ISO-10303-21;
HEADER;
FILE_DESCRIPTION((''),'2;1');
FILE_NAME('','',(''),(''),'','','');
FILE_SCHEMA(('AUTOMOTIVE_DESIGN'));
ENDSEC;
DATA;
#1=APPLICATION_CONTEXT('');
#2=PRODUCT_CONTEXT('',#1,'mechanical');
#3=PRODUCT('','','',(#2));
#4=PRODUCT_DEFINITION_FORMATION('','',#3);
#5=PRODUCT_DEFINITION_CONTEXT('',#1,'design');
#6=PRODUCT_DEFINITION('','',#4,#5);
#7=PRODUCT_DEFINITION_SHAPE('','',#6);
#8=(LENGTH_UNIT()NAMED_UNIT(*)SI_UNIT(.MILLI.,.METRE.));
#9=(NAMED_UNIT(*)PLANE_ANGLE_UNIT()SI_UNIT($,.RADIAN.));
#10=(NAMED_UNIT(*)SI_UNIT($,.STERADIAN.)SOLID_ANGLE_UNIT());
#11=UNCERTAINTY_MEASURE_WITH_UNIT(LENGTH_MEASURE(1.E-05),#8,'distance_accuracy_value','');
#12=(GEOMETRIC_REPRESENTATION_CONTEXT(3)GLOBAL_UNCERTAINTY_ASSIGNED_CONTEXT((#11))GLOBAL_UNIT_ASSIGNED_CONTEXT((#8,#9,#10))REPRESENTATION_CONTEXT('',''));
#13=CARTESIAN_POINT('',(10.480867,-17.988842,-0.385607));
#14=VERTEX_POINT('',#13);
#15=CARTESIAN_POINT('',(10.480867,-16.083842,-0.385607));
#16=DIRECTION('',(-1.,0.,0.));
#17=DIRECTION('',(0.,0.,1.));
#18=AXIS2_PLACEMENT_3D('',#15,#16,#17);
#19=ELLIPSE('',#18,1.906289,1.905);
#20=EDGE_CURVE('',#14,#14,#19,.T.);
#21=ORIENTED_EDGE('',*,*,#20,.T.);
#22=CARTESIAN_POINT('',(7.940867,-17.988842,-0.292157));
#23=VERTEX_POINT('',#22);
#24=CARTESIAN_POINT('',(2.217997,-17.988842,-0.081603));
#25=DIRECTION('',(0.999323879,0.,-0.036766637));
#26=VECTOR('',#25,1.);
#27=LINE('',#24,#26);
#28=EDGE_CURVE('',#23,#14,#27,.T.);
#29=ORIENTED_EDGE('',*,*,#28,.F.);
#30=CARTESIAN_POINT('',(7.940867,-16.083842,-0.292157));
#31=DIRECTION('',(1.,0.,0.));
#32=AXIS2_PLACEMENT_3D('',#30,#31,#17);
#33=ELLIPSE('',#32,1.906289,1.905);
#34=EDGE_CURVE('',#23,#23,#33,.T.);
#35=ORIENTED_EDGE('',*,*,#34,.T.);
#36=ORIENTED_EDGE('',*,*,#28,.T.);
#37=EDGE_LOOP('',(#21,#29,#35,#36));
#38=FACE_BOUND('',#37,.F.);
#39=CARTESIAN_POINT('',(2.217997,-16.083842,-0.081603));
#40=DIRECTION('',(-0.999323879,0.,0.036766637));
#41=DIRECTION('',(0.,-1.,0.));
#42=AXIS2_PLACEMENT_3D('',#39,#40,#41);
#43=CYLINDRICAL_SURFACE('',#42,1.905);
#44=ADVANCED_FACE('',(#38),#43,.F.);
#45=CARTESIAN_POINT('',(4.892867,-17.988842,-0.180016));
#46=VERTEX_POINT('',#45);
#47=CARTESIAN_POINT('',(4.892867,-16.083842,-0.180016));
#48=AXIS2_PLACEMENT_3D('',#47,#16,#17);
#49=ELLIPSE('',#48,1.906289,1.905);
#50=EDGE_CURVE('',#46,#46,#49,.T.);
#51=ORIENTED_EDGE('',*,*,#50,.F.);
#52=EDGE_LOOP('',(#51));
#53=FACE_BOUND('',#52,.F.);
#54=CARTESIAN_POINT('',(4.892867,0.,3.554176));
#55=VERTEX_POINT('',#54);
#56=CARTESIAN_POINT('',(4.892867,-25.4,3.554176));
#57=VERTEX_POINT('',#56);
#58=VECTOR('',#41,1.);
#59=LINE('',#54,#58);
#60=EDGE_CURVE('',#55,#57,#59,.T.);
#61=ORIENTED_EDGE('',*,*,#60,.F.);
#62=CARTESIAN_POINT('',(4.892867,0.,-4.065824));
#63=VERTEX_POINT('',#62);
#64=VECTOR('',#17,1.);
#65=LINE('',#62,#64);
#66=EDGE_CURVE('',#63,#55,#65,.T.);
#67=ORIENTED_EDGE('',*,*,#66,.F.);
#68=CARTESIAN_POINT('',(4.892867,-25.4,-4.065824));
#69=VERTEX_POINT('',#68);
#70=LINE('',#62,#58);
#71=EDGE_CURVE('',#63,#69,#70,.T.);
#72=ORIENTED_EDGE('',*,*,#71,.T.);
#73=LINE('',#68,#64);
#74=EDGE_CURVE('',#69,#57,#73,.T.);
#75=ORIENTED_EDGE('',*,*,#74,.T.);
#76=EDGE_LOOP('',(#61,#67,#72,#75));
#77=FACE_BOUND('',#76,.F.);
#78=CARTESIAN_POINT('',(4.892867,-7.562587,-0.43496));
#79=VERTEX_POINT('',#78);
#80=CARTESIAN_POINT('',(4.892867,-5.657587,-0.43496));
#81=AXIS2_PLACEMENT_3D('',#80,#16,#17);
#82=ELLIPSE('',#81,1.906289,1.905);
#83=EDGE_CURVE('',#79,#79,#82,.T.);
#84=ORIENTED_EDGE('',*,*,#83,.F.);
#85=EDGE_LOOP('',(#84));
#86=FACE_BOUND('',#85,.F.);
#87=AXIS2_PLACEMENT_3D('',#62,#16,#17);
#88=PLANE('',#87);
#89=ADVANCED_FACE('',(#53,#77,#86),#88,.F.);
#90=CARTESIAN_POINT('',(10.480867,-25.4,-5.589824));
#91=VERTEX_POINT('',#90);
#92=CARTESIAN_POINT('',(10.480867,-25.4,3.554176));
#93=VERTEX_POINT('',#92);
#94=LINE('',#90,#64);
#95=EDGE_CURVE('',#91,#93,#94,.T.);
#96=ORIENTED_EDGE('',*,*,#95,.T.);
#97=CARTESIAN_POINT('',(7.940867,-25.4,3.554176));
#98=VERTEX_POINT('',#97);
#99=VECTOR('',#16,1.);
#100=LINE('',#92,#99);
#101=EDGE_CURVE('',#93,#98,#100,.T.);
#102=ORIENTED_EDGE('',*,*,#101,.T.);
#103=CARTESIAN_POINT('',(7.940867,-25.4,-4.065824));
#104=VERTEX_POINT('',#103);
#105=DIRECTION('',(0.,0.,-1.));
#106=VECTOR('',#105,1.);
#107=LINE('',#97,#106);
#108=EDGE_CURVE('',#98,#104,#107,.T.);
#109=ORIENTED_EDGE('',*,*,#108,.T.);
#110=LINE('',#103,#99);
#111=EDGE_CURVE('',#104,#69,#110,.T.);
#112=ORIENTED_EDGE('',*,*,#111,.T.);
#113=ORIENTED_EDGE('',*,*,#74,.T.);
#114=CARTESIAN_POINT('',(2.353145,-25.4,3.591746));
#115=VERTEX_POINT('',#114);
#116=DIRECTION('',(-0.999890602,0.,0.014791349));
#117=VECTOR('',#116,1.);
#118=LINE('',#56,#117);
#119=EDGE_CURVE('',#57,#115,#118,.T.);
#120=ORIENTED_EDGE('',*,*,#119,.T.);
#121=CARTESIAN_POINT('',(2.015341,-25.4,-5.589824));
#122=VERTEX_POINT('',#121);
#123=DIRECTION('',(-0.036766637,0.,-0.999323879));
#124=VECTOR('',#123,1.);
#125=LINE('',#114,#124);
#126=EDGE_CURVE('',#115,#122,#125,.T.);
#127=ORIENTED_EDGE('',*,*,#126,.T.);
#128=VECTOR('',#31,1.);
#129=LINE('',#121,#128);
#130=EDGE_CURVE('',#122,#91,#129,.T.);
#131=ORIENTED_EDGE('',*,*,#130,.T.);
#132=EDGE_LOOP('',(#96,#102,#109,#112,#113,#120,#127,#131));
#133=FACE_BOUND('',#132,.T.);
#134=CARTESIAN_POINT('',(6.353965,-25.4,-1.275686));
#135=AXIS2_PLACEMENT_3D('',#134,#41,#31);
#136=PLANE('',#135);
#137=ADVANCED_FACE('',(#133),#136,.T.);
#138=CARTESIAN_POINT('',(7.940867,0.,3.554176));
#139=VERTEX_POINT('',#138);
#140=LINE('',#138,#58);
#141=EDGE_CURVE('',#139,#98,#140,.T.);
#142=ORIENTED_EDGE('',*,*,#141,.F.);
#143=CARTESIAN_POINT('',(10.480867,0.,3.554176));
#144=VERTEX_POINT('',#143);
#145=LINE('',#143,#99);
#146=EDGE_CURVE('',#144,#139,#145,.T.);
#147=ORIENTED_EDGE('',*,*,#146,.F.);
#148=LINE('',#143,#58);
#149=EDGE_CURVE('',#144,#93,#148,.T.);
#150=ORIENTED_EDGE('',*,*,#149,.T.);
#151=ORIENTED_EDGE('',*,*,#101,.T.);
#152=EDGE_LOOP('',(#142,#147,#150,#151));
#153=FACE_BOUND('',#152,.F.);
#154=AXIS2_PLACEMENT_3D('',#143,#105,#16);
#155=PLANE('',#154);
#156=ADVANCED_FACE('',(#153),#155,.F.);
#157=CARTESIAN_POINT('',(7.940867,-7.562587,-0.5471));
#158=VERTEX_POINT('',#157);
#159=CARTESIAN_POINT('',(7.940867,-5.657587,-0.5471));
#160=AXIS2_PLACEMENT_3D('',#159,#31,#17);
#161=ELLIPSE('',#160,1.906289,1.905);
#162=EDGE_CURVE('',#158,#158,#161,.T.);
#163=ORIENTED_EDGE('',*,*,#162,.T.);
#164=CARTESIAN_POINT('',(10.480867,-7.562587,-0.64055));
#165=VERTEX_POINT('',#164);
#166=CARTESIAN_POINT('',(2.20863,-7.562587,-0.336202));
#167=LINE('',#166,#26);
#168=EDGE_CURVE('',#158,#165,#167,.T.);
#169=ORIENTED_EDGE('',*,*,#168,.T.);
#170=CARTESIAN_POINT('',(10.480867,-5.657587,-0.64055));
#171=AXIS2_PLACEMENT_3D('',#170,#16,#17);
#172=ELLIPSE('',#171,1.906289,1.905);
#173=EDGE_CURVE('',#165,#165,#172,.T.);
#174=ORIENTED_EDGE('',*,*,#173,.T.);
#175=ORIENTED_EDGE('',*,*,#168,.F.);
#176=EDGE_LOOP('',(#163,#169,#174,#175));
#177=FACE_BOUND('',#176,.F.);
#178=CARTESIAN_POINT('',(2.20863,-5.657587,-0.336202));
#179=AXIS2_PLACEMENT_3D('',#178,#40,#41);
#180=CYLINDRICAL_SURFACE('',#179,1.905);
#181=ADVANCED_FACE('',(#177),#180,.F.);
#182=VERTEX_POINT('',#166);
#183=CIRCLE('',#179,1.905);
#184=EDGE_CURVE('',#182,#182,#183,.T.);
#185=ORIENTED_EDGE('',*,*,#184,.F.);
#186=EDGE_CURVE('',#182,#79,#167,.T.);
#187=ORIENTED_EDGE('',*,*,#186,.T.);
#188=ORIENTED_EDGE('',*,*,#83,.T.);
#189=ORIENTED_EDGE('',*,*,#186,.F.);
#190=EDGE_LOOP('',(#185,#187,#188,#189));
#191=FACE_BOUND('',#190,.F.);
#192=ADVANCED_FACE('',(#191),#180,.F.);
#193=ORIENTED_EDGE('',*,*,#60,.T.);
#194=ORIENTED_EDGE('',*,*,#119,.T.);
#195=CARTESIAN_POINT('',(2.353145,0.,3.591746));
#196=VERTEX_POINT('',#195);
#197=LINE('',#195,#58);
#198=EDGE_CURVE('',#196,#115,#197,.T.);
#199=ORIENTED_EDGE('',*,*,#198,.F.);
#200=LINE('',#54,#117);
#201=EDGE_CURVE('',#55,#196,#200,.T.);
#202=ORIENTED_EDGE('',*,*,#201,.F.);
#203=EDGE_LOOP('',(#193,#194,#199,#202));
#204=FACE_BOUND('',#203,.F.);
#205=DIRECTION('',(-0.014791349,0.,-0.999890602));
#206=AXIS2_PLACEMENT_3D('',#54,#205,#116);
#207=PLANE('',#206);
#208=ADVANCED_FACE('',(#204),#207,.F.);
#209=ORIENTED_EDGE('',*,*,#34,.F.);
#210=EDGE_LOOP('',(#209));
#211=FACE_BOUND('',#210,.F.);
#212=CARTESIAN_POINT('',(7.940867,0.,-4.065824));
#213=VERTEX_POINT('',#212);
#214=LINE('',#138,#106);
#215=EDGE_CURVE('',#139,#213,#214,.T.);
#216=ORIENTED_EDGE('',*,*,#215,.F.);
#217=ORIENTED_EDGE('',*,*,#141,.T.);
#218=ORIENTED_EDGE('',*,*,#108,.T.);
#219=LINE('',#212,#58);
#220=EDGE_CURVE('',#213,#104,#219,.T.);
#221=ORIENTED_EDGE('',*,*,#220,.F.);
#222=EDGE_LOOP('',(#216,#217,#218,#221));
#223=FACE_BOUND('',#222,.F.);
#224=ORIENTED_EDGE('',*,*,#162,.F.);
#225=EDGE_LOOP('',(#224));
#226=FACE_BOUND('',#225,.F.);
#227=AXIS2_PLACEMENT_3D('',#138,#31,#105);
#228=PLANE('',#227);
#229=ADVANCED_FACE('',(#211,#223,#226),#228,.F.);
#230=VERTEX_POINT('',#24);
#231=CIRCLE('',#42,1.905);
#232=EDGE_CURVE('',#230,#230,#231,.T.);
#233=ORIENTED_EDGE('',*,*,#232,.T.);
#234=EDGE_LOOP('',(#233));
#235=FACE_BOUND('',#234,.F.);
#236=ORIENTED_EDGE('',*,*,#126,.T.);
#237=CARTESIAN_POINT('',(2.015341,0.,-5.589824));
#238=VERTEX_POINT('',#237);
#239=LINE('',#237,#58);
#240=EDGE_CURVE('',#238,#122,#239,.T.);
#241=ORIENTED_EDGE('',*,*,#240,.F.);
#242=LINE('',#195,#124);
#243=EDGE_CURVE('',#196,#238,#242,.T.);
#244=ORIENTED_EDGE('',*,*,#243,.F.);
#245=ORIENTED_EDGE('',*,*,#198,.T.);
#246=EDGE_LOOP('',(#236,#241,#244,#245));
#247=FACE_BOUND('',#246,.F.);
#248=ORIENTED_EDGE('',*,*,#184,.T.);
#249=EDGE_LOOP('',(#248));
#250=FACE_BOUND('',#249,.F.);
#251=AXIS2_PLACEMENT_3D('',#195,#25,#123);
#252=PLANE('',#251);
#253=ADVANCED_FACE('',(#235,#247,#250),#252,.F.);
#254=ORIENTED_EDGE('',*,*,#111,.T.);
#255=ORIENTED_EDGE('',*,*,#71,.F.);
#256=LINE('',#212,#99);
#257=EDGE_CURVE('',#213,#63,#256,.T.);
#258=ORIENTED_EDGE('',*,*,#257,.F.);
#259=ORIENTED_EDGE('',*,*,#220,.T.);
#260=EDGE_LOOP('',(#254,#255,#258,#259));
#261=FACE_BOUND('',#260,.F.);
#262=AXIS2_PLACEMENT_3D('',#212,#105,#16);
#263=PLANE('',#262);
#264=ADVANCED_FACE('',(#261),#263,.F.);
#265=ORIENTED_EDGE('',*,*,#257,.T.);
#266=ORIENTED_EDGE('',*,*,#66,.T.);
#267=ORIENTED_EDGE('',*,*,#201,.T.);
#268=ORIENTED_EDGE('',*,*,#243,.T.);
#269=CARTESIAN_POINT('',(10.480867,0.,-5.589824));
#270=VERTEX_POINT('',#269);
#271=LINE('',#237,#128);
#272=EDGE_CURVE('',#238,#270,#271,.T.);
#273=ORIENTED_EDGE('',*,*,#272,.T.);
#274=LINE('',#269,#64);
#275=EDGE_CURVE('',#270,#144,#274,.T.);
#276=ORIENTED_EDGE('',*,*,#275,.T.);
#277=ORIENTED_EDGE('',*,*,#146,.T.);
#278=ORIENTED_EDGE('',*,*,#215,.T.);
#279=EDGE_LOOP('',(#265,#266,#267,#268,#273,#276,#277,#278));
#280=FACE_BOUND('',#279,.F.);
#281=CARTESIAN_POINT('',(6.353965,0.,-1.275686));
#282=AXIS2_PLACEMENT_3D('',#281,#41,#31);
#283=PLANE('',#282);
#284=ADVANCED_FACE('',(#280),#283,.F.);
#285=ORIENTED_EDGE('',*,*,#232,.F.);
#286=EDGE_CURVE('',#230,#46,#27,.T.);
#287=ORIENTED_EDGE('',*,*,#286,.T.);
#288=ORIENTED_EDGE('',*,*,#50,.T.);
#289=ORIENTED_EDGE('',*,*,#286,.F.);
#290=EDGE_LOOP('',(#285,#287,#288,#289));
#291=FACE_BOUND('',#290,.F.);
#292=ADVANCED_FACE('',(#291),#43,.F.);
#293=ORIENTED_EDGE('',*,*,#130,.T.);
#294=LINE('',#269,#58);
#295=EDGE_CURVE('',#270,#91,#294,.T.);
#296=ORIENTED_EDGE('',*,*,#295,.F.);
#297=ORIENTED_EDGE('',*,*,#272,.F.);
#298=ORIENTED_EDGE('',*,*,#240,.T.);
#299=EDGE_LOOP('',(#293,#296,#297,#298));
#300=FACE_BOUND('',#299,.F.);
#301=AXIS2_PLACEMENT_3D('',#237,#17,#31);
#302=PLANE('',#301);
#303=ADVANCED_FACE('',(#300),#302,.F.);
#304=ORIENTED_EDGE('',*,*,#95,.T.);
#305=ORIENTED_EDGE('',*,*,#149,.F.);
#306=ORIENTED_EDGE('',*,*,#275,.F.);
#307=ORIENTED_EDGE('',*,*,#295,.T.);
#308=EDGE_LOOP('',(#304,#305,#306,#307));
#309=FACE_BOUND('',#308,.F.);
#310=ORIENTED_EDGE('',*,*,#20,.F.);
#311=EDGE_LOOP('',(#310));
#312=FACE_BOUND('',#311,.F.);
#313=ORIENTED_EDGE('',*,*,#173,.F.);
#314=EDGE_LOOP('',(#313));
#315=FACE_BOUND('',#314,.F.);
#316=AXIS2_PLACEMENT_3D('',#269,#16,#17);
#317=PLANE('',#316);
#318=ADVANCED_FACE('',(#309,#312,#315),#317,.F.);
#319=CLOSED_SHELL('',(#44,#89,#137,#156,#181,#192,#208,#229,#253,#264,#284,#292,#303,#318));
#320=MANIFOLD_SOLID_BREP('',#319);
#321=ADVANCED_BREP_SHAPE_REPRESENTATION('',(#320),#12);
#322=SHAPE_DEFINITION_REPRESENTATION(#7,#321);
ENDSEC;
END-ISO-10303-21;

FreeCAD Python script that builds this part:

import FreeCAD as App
import Part
import Sketcher

V = App.Vector
Q = App.Units.Quantity

doc = App.newDocument("Part")
body = doc.addObject("PartDesign::Body", "Body")

# Sketch on XZ plane
sketch1 = body.newObject("Sketcher::SketchObject", "Sketch")
sketch1.AttachmentSupport = (doc.getObject("XZ_Plane"), [""])
sketch1.MapMode = "FlatFace"
sketch1.addGeometry(Part.LineSegment(V(4.9, 3.6, 0), V(2.4, 3.6, 0)), False)
sketch1.addGeometry(Part.LineSegment(V(2.4, 3.6, 0), V(2, -5.6, 0)), False)
sketch1.addGeometry(Part.LineSegment(V(2, -5.6, 0), V(10.5, -5.6, 0)), False)
sketch1.addGeometry(Part.LineSegment(V(10.5, -5.6, 0), V(10.5, 3.6, 0)), False)
sketch1.addGeometry(Part.LineSegment(V(10.5, 3.6, 0), V(7.9, 3.6, 0)), False)
sketch1.addGeometry(Part.LineSegment(V(7.9, 3.6, 0), V(7.9, -4.1, 0)), False)
sketch1.addGeometry(Part.LineSegment(V(7.9, -4.1, 0), V(4.9, -4.1, 0)), False)
sketch1.addGeometry(Part.LineSegment(V(4.9, -4.1, 0), V(4.9, 3.6, 0)), False)
sketch1.addConstraint(Sketcher.Constraint("Coincident", 0, 2, 1, 1))
sketch1.addConstraint(Sketcher.Constraint("Coincident", 1, 2, 2, 1))
sketch1.addConstraint(Sketcher.Constraint("Coincident", 2, 2, 3, 1))
sketch1.addConstraint(Sketcher.Constraint("Coincident", 3, 2, 4, 1))
sketch1.addConstraint(Sketcher.Constraint("Coincident", 4, 2, 5, 1))
sketch1.addConstraint(Sketcher.Constraint("Coincident", 5, 2, 6, 1))
sketch1.addConstraint(Sketcher.Constraint("Coincident", 6, 2, 7, 1))
sketch1.addConstraint(Sketcher.Constraint("Coincident", 7, 2, 0, 1))
sketch1.addConstraint(Sketcher.Constraint("Horizontal", 2))
sketch1.addConstraint(Sketcher.Constraint("Vertical", 3))
sketch1.addConstraint(Sketcher.Constraint("Horizontal", 4))
sketch1.addConstraint(Sketcher.Constraint("Vertical", 5))
sketch1.addConstraint(Sketcher.Constraint("Horizontal", 6))
sketch1.addConstraint(Sketcher.Constraint("Vertical", 7))
sketch1.addConstraint(Sketcher.Constraint("Horizontal", 4, 2, 7, 2))
sketch1.addConstraint(Sketcher.Constraint("DistanceX", 4, 2, 4, 1, Q("0.1 in")))
sketch1.addConstraint(Sketcher.Constraint("DistanceY", 5, 2, 5, 1, Q("0.3 in")))
sketch1.addConstraint(Sketcher.Constraint("Distance", 0, Q("0.1 in")))
sketch1.addConstraint(Sketcher.Constraint("DistanceX", 6, 2, 6, 1, Q("0.12 in")))
sketch1.addConstraint(Sketcher.Constraint("DistanceY", 3, 1, 3, 2, Q("0.36 in")))
sketch1.addConstraint(Sketcher.Constraint("DistanceX", 2, 1, 2, 2, Q("8.465526 mm")))
sketch1.addConstraint(Sketcher.Constraint("DistanceX", -1, 1, 1, 2, Q("2.015341 mm")))
sketch1.addConstraint(Sketcher.Constraint("DistanceY", 1, 2, 0, 2, Q("9.18157 mm")))
sketch1.addConstraint(Sketcher.Constraint("DistanceY", -1, 1, 0, 2, Q("3.591746 mm")))
pad1 = body.newObject("PartDesign::Pad", "Pad")
pad1.Profile = sketch1
pad1.Length = Q("1 in")

# Sketch on an angled plane
sketch2 = body.newObject("Sketcher::SketchObject", "Sketch001")
sketch2.Placement = App.Placement(V(2.217997, 0, -0.081603), App.Rotation(V(0, -1, 0), V(0.036766637, 0, 0.999323879), V(-0.999323879, 0, 0.036766637), "ZXY"))
sketch2.addGeometry(Part.Circle(V(5.7, -0.3, 0), V(0, 0, 1), 1.9), False)
sketch2.addGeometry(Part.Circle(V(16.1, 0, 0), V(0, 0, 1), 1.9), False)
sketch2.addConstraint(Sketcher.Constraint("Equal", 0, 1))
sketch2.addConstraint(Sketcher.Constraint("PointOnObject", 1, 3, -1))
sketch2.addConstraint(Sketcher.Constraint("Diameter", 0, Q("0.15 in")))
sketch2.addConstraint(Sketcher.Constraint("DistanceY", 0, 3, -1, 1, Q("0.254771 mm")))
sketch2.addConstraint(Sketcher.Constraint("DistanceX", -1, 1, 1, 3, Q("16.083842 mm")))
sketch2.addConstraint(Sketcher.Constraint("DistanceX", -1, 1, 0, 3, Q("5.657587 mm")))
pocket1 = body.newObject("PartDesign::Pocket", "Pocket")
pocket1.Profile = sketch2
pocket1.Length = Q("1 in")

doc.recompute()
